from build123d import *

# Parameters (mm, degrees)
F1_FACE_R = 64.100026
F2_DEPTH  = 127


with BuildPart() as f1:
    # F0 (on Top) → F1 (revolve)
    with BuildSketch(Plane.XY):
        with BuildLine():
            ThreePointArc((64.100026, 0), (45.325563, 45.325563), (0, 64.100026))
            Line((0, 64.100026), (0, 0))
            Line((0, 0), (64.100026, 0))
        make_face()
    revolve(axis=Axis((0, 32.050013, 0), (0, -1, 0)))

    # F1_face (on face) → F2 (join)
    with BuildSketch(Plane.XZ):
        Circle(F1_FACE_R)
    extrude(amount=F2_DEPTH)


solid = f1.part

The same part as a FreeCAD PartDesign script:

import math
import FreeCAD as App
import Part
import Sketcher

V = App.Vector
Q = App.Units.Quantity

doc = App.newDocument("Part")
body = doc.addObject("PartDesign::Body", "Body")

# Sketch on XY plane
sketch1 = doc.addObject("Sketcher::SketchObject", "Sketch")
body.addObject(sketch1)
sketch1.AttachmentSupport = (doc.XY_Plane, [""])
sketch1.MapMode = "FlatFace"
sketch1.addGeometry([
    Part.ArcOfCircle(Part.Circle(V(0, 0, 0), V(0, 0, 1), 64), math.radians(0), math.radians(90)),
    Part.LineSegment(V(0, 64, 0), V(0, 0, 0)),
    Part.LineSegment(V(0, 0, 0), V(64, 0, 0)),
], False)
sketch1.addConstraint([
    Sketcher.Constraint("Coincident", 0, 2, 1, 1),
    Sketcher.Constraint("Coincident", 1, 2, 2, 1),
    Sketcher.Constraint("Coincident", 2, 2, 0, 1),
    Sketcher.Constraint("Vertical", 1),
    Sketcher.Constraint("Horizontal", 2),
    Sketcher.Constraint("Coincident", 0, 3, -1, 1),
    Sketcher.Constraint("Coincident", 1, 2, -1, 1),
    Sketcher.Constraint("Radius", 0, 64.100026),
])
revolution = doc.addObject("PartDesign::Revolution", "Revolution")
body.addObject(revolution)
revolution.Profile = sketch1
revolution.ReferenceAxis = (sketch1, ["V_Axis"])
revolution.Angle = 360

# Sketch on XZ plane
sketch2 = doc.addObject("Sketcher::SketchObject", "Sketch001")
body.addObject(sketch2)
sketch2.AttachmentSupport = (doc.XZ_Plane, [""])
sketch2.MapMode = "FlatFace"
sketch2.addGeometry(Part.Circle(V(0, 0, 0), V(0, 0, 1), 64), False)
sketch2.addConstraint([
    Sketcher.Constraint("Coincident", 0, 3, -1, 1),
    Sketcher.Constraint("Diameter", 0, 128.200052),
])
pad1 = doc.addObject("PartDesign::Pad", "Pad")
body.addObject(pad1)
pad1.Profile = sketch2
pad1.Length = Q("5 in")

doc.recompute()
